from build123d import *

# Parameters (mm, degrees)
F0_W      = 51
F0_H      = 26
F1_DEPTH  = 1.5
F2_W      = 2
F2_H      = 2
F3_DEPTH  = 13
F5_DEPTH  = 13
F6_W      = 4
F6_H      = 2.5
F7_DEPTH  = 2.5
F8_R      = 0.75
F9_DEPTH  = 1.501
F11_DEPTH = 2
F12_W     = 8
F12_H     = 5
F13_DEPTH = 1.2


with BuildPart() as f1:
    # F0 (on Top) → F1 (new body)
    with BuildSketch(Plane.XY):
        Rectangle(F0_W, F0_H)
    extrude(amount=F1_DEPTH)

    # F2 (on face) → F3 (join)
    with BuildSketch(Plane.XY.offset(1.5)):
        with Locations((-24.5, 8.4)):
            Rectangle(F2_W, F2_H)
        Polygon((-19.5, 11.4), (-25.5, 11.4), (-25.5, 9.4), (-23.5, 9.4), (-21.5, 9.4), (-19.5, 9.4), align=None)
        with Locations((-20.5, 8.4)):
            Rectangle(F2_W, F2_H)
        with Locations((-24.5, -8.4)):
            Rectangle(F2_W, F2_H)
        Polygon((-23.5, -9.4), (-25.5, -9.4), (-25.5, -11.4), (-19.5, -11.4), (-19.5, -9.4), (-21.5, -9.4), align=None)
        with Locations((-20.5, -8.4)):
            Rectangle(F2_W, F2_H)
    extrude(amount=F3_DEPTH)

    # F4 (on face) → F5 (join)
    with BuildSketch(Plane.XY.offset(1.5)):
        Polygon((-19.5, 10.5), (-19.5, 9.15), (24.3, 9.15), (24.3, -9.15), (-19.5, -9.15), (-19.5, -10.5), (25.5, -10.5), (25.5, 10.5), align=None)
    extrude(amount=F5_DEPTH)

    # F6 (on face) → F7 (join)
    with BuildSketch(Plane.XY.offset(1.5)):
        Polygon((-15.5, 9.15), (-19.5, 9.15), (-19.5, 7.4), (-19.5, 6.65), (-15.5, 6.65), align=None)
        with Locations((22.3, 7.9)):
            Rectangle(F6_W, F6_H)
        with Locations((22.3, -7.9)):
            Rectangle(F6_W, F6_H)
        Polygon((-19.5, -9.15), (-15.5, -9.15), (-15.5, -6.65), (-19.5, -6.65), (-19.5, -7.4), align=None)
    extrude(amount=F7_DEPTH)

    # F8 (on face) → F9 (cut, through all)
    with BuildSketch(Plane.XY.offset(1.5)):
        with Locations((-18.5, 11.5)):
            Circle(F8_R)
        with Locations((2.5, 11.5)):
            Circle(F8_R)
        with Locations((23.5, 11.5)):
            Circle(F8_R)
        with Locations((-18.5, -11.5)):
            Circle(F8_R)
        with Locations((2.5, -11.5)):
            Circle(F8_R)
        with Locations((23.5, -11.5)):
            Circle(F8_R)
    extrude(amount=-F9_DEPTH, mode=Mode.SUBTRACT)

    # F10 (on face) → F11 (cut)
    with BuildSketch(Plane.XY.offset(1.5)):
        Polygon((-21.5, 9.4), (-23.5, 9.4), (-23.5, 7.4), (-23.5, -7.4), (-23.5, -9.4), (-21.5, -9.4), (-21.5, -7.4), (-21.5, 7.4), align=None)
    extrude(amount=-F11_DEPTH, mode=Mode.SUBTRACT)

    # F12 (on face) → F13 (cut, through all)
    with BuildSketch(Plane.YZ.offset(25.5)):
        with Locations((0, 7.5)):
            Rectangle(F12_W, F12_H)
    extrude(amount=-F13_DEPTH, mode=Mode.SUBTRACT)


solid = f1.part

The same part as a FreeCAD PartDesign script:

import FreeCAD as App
import Part
import Sketcher

doc = App.newDocument("Part")
params = doc.addObject("Spreadsheet::Sheet", "Params")
for row, (alias, value) in enumerate([
    ("sketch1_width", "51 mm"),
    ("sketch1_height", "26 mm"),
    ("pad1_length", "1.5 mm"),
    ("sketch2_width", "2 mm"),
    ("sketch2_height", "4 mm"),
    ("pad2_length", "13 mm"),
    ("sketch3_width", "45 mm"),
    ("sketch3_height", "21 mm"),
    ("sketch3_width2", "43.8 mm"),
    ("sketch3_height2", "18.3 mm"),
    ("pad3_length", "13 mm"),
    ("sketch4_width", "4 mm"),
    ("sketch4_height", "2.5 mm"),
    ("pad4_length", "2.5 mm"),
    ("sketch5_diameter", "1.5 mm"),
    ("sketch6_width", "2 mm"),
    ("sketch6_height", "18.8 mm"),
    ("pocket2_length", "2 mm"),
    ("sketch7_width", "8 mm"),
    ("sketch7_height", "5 mm"),
], start=1):
    params.set(f"A{row}", alias)
    params.set(f"B{row}", "=" + value)
    params.setAlias(f"B{row}", alias)

body = doc.addObject("PartDesign::Body", "Body")

sketch1 = body.newObject("Sketcher::SketchObject", "Sketch")
sketch1.AttachmentSupport = (doc.getObject("XY_Plane"), [""])
sketch1.MapMode = "FlatFace"
sketch1.addGeometry([
    Part.LineSegment(App.Vector(-26, 13, 0), App.Vector(-26, -13, 0)),
    Part.LineSegment(App.Vector(-26, -13, 0), App.Vector(26, -13, 0)),
    Part.LineSegment(App.Vector(26, -13, 0), App.Vector(26, 13, 0)),
    Part.LineSegment(App.Vector(26, 13, 0), App.Vector(-26, 13, 0)),
], False)
sketch1.addConstraint([
    Sketcher.Constraint("Coincident", 0, 2, 1, 1),
    Sketcher.Constraint("Coincident", 1, 2, 2, 1),
    Sketcher.Constraint("Coincident", 2, 2, 3, 1),
    Sketcher.Constraint("Coincident", 3, 2, 0, 1),
    Sketcher.Constraint("Vertical", 0),
    Sketcher.Constraint("Horizontal", 1),
    Sketcher.Constraint("Vertical", 2),
    Sketcher.Constraint("Horizontal", 3),
    Sketcher.Constraint("Symmetric", 0, 2, 2, 2, -1, 1),
    Sketcher.Constraint("DistanceX", 1, 1, 1, 2, 51.0),
    Sketcher.Constraint("DistanceY", 0, 2, 0, 1, 26.0),
])
sketch1.setExpression("Constraints[9]", "Params.sketch1_width")
sketch1.setExpression("Constraints[10]", "Params.sketch1_height")
pad1 = body.newObject("PartDesign::Pad", "Pad")
pad1.Profile = sketch1
pad1.setExpression("Length", "Params.pad1_length")

sketch2 = body.newObject("Sketcher::SketchObject", "Sketch001")
sketch2.AttachmentSupport = (doc.getObject("XY_Plane"), [""])
sketch2.MapMode = "FlatFace"
sketch2.AttachmentOffset = App.Placement(App.Vector(0, 0, 1.5), App.Rotation())
sketch2.addGeometry([
    Part.LineSegment(App.Vector(-25.5, 7.4, 0), App.Vector(-23.5, 7.4, 0)),
    Part.LineSegment(App.Vector(-23.5, 7.4, 0), App.Vector(-23.5, 9.4, 0)),
    Part.LineSegment(App.Vector(-23.5, 9.4, 0), App.Vector(-21.5, 9.4, 0)),
    Part.LineSegment(App.Vector(-21.5, 9.4, 0), App.Vector(-21.5, 7.4, 0)),
    Part.LineSegment(App.Vector(-21.5, 7.4, 0), App.Vector(-19.5, 7.4, 0)),
    Part.LineSegment(App.Vector(-19.5, 7.4, 0), App.Vector(-19.5, 11.4, 0)),
    Part.LineSegment(App.Vector(-19.5, 11.4, 0), App.Vector(-25.5, 11.4, 0)),
    Part.LineSegment(App.Vector(-25.5, 11.4, 0), App.Vector(-25.5, 7.4, 0)),
    Part.LineSegment(App.Vector(-25.5, -7.4, 0), App.Vector(-25.5, -11.4, 0)),
    Part.LineSegment(App.Vector(-25.5, -11.4, 0), App.Vector(-19.5, -11.4, 0)),
    Part.LineSegment(App.Vector(-19.5, -11.4, 0), App.Vector(-19.5, -7.4, 0)),
    Part.LineSegment(App.Vector(-19.5, -7.4, 0), App.Vector(-21.5, -7.4, 0)),
    Part.LineSegment(App.Vector(-21.5, -7.4, 0), App.Vector(-21.5, -9.4, 0)),
    Part.LineSegment(App.Vector(-21.5, -9.4, 0), App.Vector(-23.5, -9.4, 0)),
    Part.LineSegment(App.Vector(-23.5, -9.4, 0), App.Vector(-23.5, -7.4, 0)),
    Part.LineSegment(App.Vector(-23.5, -7.4, 0), App.Vector(-25.5, -7.4, 0)),
], False)
sketch2.addConstraint([
    Sketcher.Constraint("Coincident", 0, 2, 1, 1),
    Sketcher.Constraint("Coincident", 1, 2, 2, 1),
    Sketcher.Constraint("Coincident", 2, 2, 3, 1),
    Sketcher.Constraint("Coincident", 3, 2, 4, 1),
    Sketcher.Constraint("Coincident", 4, 2, 5, 1),
    Sketcher.Constraint("Coincident", 5, 2, 6, 1),
    Sketcher.Constraint("Coincident", 6, 2, 7, 1),
    Sketcher.Constraint("Coincident", 7, 2, 0, 1),
    Sketcher.Constraint("Coincident", 8, 2, 9, 1),
    Sketcher.Constraint("Coincident", 9, 2, 10, 1),
    Sketcher.Constraint("Coincident", 10, 2, 11, 1),
    Sketcher.Constraint("Coincident", 11, 2, 12, 1),
    Sketcher.Constraint("Coincident", 12, 2, 13, 1),
    Sketcher.Constraint("Coincident", 13, 2, 14, 1),
    Sketcher.Constraint("Coincident", 14, 2, 15, 1),
    Sketcher.Constraint("Coincident", 15, 2, 8, 1),
    Sketcher.Constraint("Horizontal", 0),
    Sketcher.Constraint("Vertical", 1),
    Sketcher.Constraint("Horizontal", 2),
    Sketcher.Constraint("Vertical", 3),
    Sketcher.Constraint("Horizontal", 4),
    Sketcher.Constraint("Vertical", 5),
    Sketcher.Constraint("Horizontal", 6),
    Sketcher.Constraint("Vertical", 7),
    Sketcher.Constraint("Vertical", 8),
    Sketcher.Constraint("Horizontal", 9),
    Sketcher.Constraint("Vertical", 10),
    Sketcher.Constraint("Horizontal", 11),
    Sketcher.Constraint("Vertical", 12),
    Sketcher.Constraint("Horizontal", 13),
    Sketcher.Constraint("Vertical", 14),
    Sketcher.Constraint("Horizontal", 15),
    Sketcher.Constraint("Symmetric", 6, 2, 8, 2, -1),
    Sketcher.Constraint("Symmetric", 4, 2, 10, 2, -1),
    Sketcher.Constraint("Symmetric", 2, 2, 12, 2, -1),
    Sketcher.Constraint("Symmetric", 0, 2, 14, 2, -1),
    Sketcher.Constraint("Horizontal", 0, 2, 3, 2),
    Sketcher.Constraint("Equal", 0, 2),
    Sketcher.Constraint("Equal", 2, 4),
    Sketcher.Constraint("Equal", 15, 1),
    Sketcher.Constraint("DistanceX", 0, 1, 0, 2, 2.0),
    Sketcher.Constraint("DistanceY", 5, 1, 5, 2, 4.0),
    Sketcher.Constraint("DistanceX", 0, 2, -1, 1, 23.5),
    Sketcher.Constraint("DistanceY", -1, 1, 0, 2, 7.4),
])
sketch2.setExpression("Constraints[40]", "Params.sketch2_width")
sketch2.setExpression("Constraints[41]", "Params.sketch2_height")
pad2 = body.newObject("PartDesign::Pad", "Pad001")
pad2.Profile = sketch2
pad2.setExpression("Length", "Params.pad2_length")

sketch3 = body.newObject("Sketcher::SketchObject", "Sketch002")
sketch3.AttachmentSupport = (doc.getObject("XY_Plane"), [""])
sketch3.MapMode = "FlatFace"
sketch3.AttachmentOffset = App.Placement(App.Vector(0, 0, 1.5), App.Rotation())
sketch3.addGeometry([
    Part.LineSegment(App.Vector(-19.5, 10.5, 0), App.Vector(-19.5, 9.2, 0)),
    Part.LineSegment(App.Vector(-19.5, 9.2, 0), App.Vector(24.3, 9.2, 0)),
    Part.LineSegment(App.Vector(24.3, 9.2, 0), App.Vector(24.3, -9.2, 0)),
    Part.LineSegment(App.Vector(24.3, -9.2, 0), App.Vector(-19.5, -9.2, 0)),
    Part.LineSegment(App.Vector(-19.5, -9.2, 0), App.Vector(-19.5, -10.5, 0)),
    Part.LineSegment(App.Vector(-19.5, -10.5, 0), App.Vector(25.5, -10.5, 0)),
    Part.LineSegment(App.Vector(25.5, -10.5, 0), App.Vector(25.5, 10.5, 0)),
    Part.LineSegment(App.Vector(25.5, 10.5, 0), App.Vector(-19.5, 10.5, 0)),
], False)
sketch3.addConstraint([
    Sketcher.Constraint("Coincident", 0, 2, 1, 1),
    Sketcher.Constraint("Coincident", 1, 2, 2, 1),
    Sketcher.Constraint("Coincident", 2, 2, 3, 1),
    Sketcher.Constraint("Coincident", 3, 2, 4, 1),
    Sketcher.Constraint("Coincident", 4, 2, 5, 1),
    Sketcher.Constraint("Coincident", 5, 2, 6, 1),
    Sketcher.Constraint("Coincident", 6, 2, 7, 1),
    Sketcher.Constraint("Coincident", 7, 2, 0, 1),
    Sketcher.Constraint("Vertical", 0),
    Sketcher.Constraint("Horizontal", 1),
    Sketcher.Constraint("Vertical", 2),
    Sketcher.Constraint("Horizontal", 3),
    Sketcher.Constraint("Vertical", 4),
    Sketcher.Constraint("Horizontal", 5),
    Sketcher.Constraint("Vertical", 6),
    Sketcher.Constraint("Horizontal", 7),
    Sketcher.Constraint("Symmetric", 0, 2, 3, 2, -1),
    Sketcher.Constraint("Equal", 0, 4),
    Sketcher.Constraint("DistanceX", 5, 1, 5, 2, 45.0),
    Sketcher.Constraint("DistanceY", 6, 1, 6, 2, 21.0),
    Sketcher.Constraint("DistanceX", 1, 1, 1, 2, 43.8),
    Sketcher.Constraint("DistanceY", 2, 2, 2, 1, 18.3),
    Sketcher.Constraint("DistanceX", 0, 2, -1, 1, 19.5),
])
sketch3.setExpression("Constraints[18]", "Params.sketch3_width")
sketch3.setExpression("Constraints[19]", "Params.sketch3_height")
sketch3.setExpression("Constraints[20]", "Params.sketch3_width2")
sketch3.setExpression("Constraints[21]", "Params.sketch3_height2")
pad3 = body.newObject("PartDesign::Pad", "Pad002")
pad3.Profile = sketch3
pad3.setExpression("Length", "Params.pad3_length")

sketch4 = body.newObject("Sketcher::SketchObject", "Sketch003")
sketch4.AttachmentSupport = (doc.getObject("XY_Plane"), [""])
sketch4.MapMode = "FlatFace"
sketch4.AttachmentOffset = App.Placement(App.Vector(0, 0, 1.5), App.Rotation())
sketch4.addGeometry([
    Part.LineSegment(App.Vector(-15.5, 9.2, 0), App.Vector(-19.5, 9.2, 0)),
    Part.LineSegment(App.Vector(-19.5, 9.2, 0), App.Vector(-19.5, 6.7, 0)),
    Part.LineSegment(App.Vector(-19.5, 6.7, 0), App.Vector(-15.5, 6.7, 0)),
    Part.LineSegment(App.Vector(-15.5, 6.7, 0), App.Vector(-15.5, 9.2, 0)),
    Part.LineSegment(App.Vector(20.3, 9.2, 0), App.Vector(20.3, 6.7, 0)),
    Part.LineSegment(App.Vector(20.3, 6.7, 0), App.Vector(24.3, 6.7, 0)),
    Part.LineSegment(App.Vector(24.3, 6.7, 0), App.Vector(24.3, 9.2, 0)),
    Part.LineSegment(App.Vector(24.3, 9.2, 0), App.Vector(20.3, 9.2, 0)),
    Part.LineSegment(App.Vector(20.3, -6.7, 0), App.Vector(20.3, -9.2, 0)),
    Part.LineSegment(App.Vector(20.3, -9.2, 0), App.Vector(24.3, -9.2, 0)),
    Part.LineSegment(App.Vector(24.3, -9.2, 0), App.Vector(24.3, -6.7, 0)),
    Part.LineSegment(App.Vector(24.3, -6.7, 0), App.Vector(20.3, -6.7, 0)),
    Part.LineSegment(App.Vector(-19.5, -9.2, 0), App.Vector(-15.5, -9.2, 0)),
    Part.LineSegment(App.Vector(-15.5, -9.2, 0), App.Vector(-15.5, -6.7, 0)),
    Part.LineSegment(App.Vector(-15.5, -6.7, 0), App.Vector(-19.5, -6.7, 0)),
    Part.LineSegment(App.Vector(-19.5, -6.7, 0), App.Vector(-19.5, -9.2, 0)),
], False)
sketch4.addConstraint([
    Sketcher.Constraint("Coincident", 0, 2, 1, 1),
    Sketcher.Constraint("Coincident", 1, 2, 2, 1),
    Sketcher.Constraint("Coincident", 2, 2, 3, 1),
    Sketcher.Constraint("Coincident", 3, 2, 0, 1),
    Sketcher.Constraint("Coincident", 4, 2, 5, 1),
    Sketcher.Constraint("Coincident", 5, 2, 6, 1),
    Sketcher.Constraint("Coincident", 6, 2, 7, 1),
    Sketcher.Constraint("Coincident", 7, 2, 4, 1),
    Sketcher.Constraint("Coincident", 8, 2, 9, 1),
    Sketcher.Constraint("Coincident", 9, 2, 10, 1),
    Sketcher.Constraint("Coincident", 10, 2, 11, 1),
    Sketcher.Constraint("Coincident", 11, 2, 8, 1),
    Sketcher.Constraint("Coincident", 12, 2, 13, 1),
    Sketcher.Constraint("Coincident", 13, 2, 14, 1),
    Sketcher.Constraint("Coincident", 14, 2, 15, 1),
    Sketcher.Constraint("Coincident", 15, 2, 12, 1),
    Sketcher.Constraint("Horizontal", 0),
    Sketcher.Constraint("Vertical", 1),
    Sketcher.Constraint("Horizontal", 2),
    Sketcher.Constraint("Vertical", 3),
    Sketcher.Constraint("Vertical", 4),
    Sketcher.Constraint("Horizontal", 5),
    Sketcher.Constraint("Vertical", 6),
    Sketcher.Constraint("Horizontal", 7),
    Sketcher.Constraint("Vertical", 8),
    Sketcher.Constraint("Horizontal", 9),
    Sketcher.Constraint("Vertical", 10),
    Sketcher.Constraint("Horizontal", 11),
    Sketcher.Constraint("Horizontal", 12),
    Sketcher.Constraint("Vertical", 13),
    Sketcher.Constraint("Horizontal", 14),
    Sketcher.Constraint("Vertical", 15),
    Sketcher.Constraint("Symmetric", 7, 2, 8, 2, -1),
    Sketcher.Constraint("Symmetric", 5, 2, 10, 2, -1),
    Sketcher.Constraint("Symmetric", 3, 2, 12, 2, -1),
    Sketcher.Constraint("Symmetric", 1, 2, 14, 2, -1),
    Sketcher.Constraint("Horizontal", 2, 2, 4, 2),
    Sketcher.Constraint("Horizontal", 3, 2, 6, 2),
    Sketcher.Constraint("Equal", 2, 5),
    Sketcher.Constraint("DistanceX", 0, 2, 0, 1, 4.0),
    Sketcher.Constraint("DistanceY", 1, 2, 1, 1, 2.5),
    Sketcher.Constraint("DistanceX", 0, 2, -1, 1, 19.5),
    Sketcher.Constraint("DistanceX", -1, 1, 4, 2, 20.3),
    Sketcher.Constraint("DistanceY", 8, 2, 4, 2, 15.8),
])
sketch4.setExpression("Constraints[39]", "Params.sketch4_width")
sketch4.setExpression("Constraints[40]", "Params.sketch4_height")
pad4 = body.newObject("PartDesign::Pad", "Pad003")
pad4.Profile = sketch4
pad4.setExpression("Length", "Params.pad4_length")

sketch5 = body.newObject("Sketcher::SketchObject", "Sketch004")
sketch5.AttachmentSupport = (doc.getObject("XY_Plane"), [""])
sketch5.MapMode = "FlatFace"
sketch5.AttachmentOffset = App.Placement(App.Vector(0, 0, 1.5), App.Rotation())
sketch5.addGeometry([
    Part.Circle(App.Vector(-18.5, 11.5, 0), App.Vector(0, 0, 1), 0.8),
    Part.Circle(App.Vector(2.5, 11.5, 0), App.Vector(0, 0, 1), 0.8),
    Part.Circle(App.Vector(23.5, 11.5, 0), App.Vector(0, 0, 1), 0.8),
    Part.Circle(App.Vector(-18.5, -11.5, 0), App.Vector(0, 0, 1), 0.8),
    Part.Circle(App.Vector(2.5, -11.5, 0), App.Vector(0, 0, 1), 0.8),
    Part.Circle(App.Vector(23.5, -11.5, 0), App.Vector(0, 0, 1), 0.8),
], False)
sketch5.addConstraint([
    Sketcher.Constraint("Equal", 0, 1),
    Sketcher.Constraint("Equal", 1, 2),
    Sketcher.Constraint("Equal", 2, 3),
    Sketcher.Constraint("Equal", 3, 4),
    Sketcher.Constraint("Equal", 4, 5),
    Sketcher.Constraint("Symmetric", 0, 3, 3, 3, -1),
    Sketcher.Constraint("Symmetric", 1, 3, 4, 3, -1),
    Sketcher.Constraint("Symmetric", 2, 3, 5, 3, -1),
    Sketcher.Constraint("Horizontal", 0, 3, 1, 3),
    Sketcher.Constraint("Horizontal", 1, 3, 2, 3),
    Sketcher.Constraint("Diameter", 0, 1.5),
    Sketcher.Constraint("DistanceX", 0, 3, 1, 3, 21.0),
    Sketcher.Constraint("DistanceX", 1, 3, 2, 3, 21.0),
    Sketcher.Constraint("DistanceY", 3, 3, 0, 3, 23.0),
    Sketcher.Constraint("DistanceX", 0, 3, -1, 1, 18.5),
])
sketch5.setExpression("Constraints[10]", "Params.sketch5_diameter")
pocket1 = body.newObject("PartDesign::Pocket", "Pocket")
pocket1.Profile = sketch5
pocket1.Type = "ThroughAll"

sketch6 = body.newObject("Sketcher::SketchObject", "Sketch005")
sketch6.AttachmentSupport = (doc.getObject("XY_Plane"), [""])
sketch6.MapMode = "FlatFace"
sketch6.AttachmentOffset = App.Placement(App.Vector(0, 0, 1.5), App.Rotation())
sketch6.addGeometry([
    Part.LineSegment(App.Vector(-21.5, 9.4, 0), App.Vector(-23.5, 9.4, 0)),
    Part.LineSegment(App.Vector(-23.5, 9.4, 0), App.Vector(-23.5, -9.4, 0)),
    Part.LineSegment(App.Vector(-23.5, -9.4, 0), App.Vector(-21.5, -9.4, 0)),
    Part.LineSegment(App.Vector(-21.5, -9.4, 0), App.Vector(-21.5, 9.4, 0)),
], False)
sketch6.addConstraint([
    Sketcher.Constraint("Coincident", 0, 2, 1, 1),
    Sketcher.Constraint("Coincident", 1, 2, 2, 1),
    Sketcher.Constraint("Coincident", 2, 2, 3, 1),
    Sketcher.Constraint("Coincident", 3, 2, 0, 1),
    Sketcher.Constraint("Horizontal", 0),
    Sketcher.Constraint("Vertical", 1),
    Sketcher.Constraint("Horizontal", 2),
    Sketcher.Constraint("Vertical", 3),
    Sketcher.Constraint("DistanceX", 0, 2, 0, 1, 2.0),
    Sketcher.Constraint("DistanceY", 1, 2, 1, 1, 18.8),
    Sketcher.Constraint("DistanceX", 0, 2, -1, 1, 23.5),
    Sketcher.Constraint("DistanceY", -1, 1, 0, 2, 9.4),
])
sketch6.setExpression("Constraints[8]", "Params.sketch6_width")
sketch6.setExpression("Constraints[9]", "Params.sketch6_height")
pocket2 = body.newObject("PartDesign::Pocket", "Pocket001")
pocket2.Profile = sketch6
pocket2.setExpression("Length", "Params.pocket2_length")

sketch7 = body.newObject("Sketcher::SketchObject", "Sketch006")
sketch7.AttachmentSupport = (doc.getObject("YZ_Plane"), [""])
sketch7.MapMode = "FlatFace"
sketch7.AttachmentOffset = App.Placement(App.Vector(0, 0, 25.5), App.Rotation())
sketch7.addGeometry([
    Part.LineSegment(App.Vector(-4, 10, 0), App.Vector(-4, 5, 0)),
    Part.LineSegment(App.Vector(-4, 5, 0), App.Vector(4, 5, 0)),
    Part.LineSegment(App.Vector(4, 5, 0), App.Vector(4, 10, 0)),
    Part.LineSegment(App.Vector(4, 10, 0), App.Vector(-4, 10, 0)),
], False)
sketch7.addConstraint([
    Sketcher.Constraint("Coincident", 0, 2, 1, 1),
    Sketcher.Constraint("Coincident", 1, 2, 2, 1),
    Sketcher.Constraint("Coincident", 2, 2, 3, 1),
    Sketcher.Constraint("Coincident", 3, 2, 0, 1),
    Sketcher.Constraint("Vertical", 0),
    Sketcher.Constraint("Horizontal", 1),
    Sketcher.Constraint("Vertical", 2),
    Sketcher.Constraint("Horizontal", 3),
    Sketcher.Constraint("DistanceX", 1, 1, 1, 2, 8.0),
    Sketcher.Constraint("DistanceY", 0, 2, 0, 1, 5.0),
    Sketcher.Constraint("DistanceX", 0, 2, -1, 1, 4.0),
    Sketcher.Constraint("DistanceY", -1, 1, 0, 2, 5.0),
])
sketch7.setExpression("Constraints[8]", "Params.sketch7_width")
sketch7.setExpression("Constraints[9]", "Params.sketch7_height")
pocket3 = body.newObject("PartDesign::Pocket", "Pocket002")
pocket3.Profile = sketch7
pocket3.Type = "ThroughAll"

doc.recompute()
